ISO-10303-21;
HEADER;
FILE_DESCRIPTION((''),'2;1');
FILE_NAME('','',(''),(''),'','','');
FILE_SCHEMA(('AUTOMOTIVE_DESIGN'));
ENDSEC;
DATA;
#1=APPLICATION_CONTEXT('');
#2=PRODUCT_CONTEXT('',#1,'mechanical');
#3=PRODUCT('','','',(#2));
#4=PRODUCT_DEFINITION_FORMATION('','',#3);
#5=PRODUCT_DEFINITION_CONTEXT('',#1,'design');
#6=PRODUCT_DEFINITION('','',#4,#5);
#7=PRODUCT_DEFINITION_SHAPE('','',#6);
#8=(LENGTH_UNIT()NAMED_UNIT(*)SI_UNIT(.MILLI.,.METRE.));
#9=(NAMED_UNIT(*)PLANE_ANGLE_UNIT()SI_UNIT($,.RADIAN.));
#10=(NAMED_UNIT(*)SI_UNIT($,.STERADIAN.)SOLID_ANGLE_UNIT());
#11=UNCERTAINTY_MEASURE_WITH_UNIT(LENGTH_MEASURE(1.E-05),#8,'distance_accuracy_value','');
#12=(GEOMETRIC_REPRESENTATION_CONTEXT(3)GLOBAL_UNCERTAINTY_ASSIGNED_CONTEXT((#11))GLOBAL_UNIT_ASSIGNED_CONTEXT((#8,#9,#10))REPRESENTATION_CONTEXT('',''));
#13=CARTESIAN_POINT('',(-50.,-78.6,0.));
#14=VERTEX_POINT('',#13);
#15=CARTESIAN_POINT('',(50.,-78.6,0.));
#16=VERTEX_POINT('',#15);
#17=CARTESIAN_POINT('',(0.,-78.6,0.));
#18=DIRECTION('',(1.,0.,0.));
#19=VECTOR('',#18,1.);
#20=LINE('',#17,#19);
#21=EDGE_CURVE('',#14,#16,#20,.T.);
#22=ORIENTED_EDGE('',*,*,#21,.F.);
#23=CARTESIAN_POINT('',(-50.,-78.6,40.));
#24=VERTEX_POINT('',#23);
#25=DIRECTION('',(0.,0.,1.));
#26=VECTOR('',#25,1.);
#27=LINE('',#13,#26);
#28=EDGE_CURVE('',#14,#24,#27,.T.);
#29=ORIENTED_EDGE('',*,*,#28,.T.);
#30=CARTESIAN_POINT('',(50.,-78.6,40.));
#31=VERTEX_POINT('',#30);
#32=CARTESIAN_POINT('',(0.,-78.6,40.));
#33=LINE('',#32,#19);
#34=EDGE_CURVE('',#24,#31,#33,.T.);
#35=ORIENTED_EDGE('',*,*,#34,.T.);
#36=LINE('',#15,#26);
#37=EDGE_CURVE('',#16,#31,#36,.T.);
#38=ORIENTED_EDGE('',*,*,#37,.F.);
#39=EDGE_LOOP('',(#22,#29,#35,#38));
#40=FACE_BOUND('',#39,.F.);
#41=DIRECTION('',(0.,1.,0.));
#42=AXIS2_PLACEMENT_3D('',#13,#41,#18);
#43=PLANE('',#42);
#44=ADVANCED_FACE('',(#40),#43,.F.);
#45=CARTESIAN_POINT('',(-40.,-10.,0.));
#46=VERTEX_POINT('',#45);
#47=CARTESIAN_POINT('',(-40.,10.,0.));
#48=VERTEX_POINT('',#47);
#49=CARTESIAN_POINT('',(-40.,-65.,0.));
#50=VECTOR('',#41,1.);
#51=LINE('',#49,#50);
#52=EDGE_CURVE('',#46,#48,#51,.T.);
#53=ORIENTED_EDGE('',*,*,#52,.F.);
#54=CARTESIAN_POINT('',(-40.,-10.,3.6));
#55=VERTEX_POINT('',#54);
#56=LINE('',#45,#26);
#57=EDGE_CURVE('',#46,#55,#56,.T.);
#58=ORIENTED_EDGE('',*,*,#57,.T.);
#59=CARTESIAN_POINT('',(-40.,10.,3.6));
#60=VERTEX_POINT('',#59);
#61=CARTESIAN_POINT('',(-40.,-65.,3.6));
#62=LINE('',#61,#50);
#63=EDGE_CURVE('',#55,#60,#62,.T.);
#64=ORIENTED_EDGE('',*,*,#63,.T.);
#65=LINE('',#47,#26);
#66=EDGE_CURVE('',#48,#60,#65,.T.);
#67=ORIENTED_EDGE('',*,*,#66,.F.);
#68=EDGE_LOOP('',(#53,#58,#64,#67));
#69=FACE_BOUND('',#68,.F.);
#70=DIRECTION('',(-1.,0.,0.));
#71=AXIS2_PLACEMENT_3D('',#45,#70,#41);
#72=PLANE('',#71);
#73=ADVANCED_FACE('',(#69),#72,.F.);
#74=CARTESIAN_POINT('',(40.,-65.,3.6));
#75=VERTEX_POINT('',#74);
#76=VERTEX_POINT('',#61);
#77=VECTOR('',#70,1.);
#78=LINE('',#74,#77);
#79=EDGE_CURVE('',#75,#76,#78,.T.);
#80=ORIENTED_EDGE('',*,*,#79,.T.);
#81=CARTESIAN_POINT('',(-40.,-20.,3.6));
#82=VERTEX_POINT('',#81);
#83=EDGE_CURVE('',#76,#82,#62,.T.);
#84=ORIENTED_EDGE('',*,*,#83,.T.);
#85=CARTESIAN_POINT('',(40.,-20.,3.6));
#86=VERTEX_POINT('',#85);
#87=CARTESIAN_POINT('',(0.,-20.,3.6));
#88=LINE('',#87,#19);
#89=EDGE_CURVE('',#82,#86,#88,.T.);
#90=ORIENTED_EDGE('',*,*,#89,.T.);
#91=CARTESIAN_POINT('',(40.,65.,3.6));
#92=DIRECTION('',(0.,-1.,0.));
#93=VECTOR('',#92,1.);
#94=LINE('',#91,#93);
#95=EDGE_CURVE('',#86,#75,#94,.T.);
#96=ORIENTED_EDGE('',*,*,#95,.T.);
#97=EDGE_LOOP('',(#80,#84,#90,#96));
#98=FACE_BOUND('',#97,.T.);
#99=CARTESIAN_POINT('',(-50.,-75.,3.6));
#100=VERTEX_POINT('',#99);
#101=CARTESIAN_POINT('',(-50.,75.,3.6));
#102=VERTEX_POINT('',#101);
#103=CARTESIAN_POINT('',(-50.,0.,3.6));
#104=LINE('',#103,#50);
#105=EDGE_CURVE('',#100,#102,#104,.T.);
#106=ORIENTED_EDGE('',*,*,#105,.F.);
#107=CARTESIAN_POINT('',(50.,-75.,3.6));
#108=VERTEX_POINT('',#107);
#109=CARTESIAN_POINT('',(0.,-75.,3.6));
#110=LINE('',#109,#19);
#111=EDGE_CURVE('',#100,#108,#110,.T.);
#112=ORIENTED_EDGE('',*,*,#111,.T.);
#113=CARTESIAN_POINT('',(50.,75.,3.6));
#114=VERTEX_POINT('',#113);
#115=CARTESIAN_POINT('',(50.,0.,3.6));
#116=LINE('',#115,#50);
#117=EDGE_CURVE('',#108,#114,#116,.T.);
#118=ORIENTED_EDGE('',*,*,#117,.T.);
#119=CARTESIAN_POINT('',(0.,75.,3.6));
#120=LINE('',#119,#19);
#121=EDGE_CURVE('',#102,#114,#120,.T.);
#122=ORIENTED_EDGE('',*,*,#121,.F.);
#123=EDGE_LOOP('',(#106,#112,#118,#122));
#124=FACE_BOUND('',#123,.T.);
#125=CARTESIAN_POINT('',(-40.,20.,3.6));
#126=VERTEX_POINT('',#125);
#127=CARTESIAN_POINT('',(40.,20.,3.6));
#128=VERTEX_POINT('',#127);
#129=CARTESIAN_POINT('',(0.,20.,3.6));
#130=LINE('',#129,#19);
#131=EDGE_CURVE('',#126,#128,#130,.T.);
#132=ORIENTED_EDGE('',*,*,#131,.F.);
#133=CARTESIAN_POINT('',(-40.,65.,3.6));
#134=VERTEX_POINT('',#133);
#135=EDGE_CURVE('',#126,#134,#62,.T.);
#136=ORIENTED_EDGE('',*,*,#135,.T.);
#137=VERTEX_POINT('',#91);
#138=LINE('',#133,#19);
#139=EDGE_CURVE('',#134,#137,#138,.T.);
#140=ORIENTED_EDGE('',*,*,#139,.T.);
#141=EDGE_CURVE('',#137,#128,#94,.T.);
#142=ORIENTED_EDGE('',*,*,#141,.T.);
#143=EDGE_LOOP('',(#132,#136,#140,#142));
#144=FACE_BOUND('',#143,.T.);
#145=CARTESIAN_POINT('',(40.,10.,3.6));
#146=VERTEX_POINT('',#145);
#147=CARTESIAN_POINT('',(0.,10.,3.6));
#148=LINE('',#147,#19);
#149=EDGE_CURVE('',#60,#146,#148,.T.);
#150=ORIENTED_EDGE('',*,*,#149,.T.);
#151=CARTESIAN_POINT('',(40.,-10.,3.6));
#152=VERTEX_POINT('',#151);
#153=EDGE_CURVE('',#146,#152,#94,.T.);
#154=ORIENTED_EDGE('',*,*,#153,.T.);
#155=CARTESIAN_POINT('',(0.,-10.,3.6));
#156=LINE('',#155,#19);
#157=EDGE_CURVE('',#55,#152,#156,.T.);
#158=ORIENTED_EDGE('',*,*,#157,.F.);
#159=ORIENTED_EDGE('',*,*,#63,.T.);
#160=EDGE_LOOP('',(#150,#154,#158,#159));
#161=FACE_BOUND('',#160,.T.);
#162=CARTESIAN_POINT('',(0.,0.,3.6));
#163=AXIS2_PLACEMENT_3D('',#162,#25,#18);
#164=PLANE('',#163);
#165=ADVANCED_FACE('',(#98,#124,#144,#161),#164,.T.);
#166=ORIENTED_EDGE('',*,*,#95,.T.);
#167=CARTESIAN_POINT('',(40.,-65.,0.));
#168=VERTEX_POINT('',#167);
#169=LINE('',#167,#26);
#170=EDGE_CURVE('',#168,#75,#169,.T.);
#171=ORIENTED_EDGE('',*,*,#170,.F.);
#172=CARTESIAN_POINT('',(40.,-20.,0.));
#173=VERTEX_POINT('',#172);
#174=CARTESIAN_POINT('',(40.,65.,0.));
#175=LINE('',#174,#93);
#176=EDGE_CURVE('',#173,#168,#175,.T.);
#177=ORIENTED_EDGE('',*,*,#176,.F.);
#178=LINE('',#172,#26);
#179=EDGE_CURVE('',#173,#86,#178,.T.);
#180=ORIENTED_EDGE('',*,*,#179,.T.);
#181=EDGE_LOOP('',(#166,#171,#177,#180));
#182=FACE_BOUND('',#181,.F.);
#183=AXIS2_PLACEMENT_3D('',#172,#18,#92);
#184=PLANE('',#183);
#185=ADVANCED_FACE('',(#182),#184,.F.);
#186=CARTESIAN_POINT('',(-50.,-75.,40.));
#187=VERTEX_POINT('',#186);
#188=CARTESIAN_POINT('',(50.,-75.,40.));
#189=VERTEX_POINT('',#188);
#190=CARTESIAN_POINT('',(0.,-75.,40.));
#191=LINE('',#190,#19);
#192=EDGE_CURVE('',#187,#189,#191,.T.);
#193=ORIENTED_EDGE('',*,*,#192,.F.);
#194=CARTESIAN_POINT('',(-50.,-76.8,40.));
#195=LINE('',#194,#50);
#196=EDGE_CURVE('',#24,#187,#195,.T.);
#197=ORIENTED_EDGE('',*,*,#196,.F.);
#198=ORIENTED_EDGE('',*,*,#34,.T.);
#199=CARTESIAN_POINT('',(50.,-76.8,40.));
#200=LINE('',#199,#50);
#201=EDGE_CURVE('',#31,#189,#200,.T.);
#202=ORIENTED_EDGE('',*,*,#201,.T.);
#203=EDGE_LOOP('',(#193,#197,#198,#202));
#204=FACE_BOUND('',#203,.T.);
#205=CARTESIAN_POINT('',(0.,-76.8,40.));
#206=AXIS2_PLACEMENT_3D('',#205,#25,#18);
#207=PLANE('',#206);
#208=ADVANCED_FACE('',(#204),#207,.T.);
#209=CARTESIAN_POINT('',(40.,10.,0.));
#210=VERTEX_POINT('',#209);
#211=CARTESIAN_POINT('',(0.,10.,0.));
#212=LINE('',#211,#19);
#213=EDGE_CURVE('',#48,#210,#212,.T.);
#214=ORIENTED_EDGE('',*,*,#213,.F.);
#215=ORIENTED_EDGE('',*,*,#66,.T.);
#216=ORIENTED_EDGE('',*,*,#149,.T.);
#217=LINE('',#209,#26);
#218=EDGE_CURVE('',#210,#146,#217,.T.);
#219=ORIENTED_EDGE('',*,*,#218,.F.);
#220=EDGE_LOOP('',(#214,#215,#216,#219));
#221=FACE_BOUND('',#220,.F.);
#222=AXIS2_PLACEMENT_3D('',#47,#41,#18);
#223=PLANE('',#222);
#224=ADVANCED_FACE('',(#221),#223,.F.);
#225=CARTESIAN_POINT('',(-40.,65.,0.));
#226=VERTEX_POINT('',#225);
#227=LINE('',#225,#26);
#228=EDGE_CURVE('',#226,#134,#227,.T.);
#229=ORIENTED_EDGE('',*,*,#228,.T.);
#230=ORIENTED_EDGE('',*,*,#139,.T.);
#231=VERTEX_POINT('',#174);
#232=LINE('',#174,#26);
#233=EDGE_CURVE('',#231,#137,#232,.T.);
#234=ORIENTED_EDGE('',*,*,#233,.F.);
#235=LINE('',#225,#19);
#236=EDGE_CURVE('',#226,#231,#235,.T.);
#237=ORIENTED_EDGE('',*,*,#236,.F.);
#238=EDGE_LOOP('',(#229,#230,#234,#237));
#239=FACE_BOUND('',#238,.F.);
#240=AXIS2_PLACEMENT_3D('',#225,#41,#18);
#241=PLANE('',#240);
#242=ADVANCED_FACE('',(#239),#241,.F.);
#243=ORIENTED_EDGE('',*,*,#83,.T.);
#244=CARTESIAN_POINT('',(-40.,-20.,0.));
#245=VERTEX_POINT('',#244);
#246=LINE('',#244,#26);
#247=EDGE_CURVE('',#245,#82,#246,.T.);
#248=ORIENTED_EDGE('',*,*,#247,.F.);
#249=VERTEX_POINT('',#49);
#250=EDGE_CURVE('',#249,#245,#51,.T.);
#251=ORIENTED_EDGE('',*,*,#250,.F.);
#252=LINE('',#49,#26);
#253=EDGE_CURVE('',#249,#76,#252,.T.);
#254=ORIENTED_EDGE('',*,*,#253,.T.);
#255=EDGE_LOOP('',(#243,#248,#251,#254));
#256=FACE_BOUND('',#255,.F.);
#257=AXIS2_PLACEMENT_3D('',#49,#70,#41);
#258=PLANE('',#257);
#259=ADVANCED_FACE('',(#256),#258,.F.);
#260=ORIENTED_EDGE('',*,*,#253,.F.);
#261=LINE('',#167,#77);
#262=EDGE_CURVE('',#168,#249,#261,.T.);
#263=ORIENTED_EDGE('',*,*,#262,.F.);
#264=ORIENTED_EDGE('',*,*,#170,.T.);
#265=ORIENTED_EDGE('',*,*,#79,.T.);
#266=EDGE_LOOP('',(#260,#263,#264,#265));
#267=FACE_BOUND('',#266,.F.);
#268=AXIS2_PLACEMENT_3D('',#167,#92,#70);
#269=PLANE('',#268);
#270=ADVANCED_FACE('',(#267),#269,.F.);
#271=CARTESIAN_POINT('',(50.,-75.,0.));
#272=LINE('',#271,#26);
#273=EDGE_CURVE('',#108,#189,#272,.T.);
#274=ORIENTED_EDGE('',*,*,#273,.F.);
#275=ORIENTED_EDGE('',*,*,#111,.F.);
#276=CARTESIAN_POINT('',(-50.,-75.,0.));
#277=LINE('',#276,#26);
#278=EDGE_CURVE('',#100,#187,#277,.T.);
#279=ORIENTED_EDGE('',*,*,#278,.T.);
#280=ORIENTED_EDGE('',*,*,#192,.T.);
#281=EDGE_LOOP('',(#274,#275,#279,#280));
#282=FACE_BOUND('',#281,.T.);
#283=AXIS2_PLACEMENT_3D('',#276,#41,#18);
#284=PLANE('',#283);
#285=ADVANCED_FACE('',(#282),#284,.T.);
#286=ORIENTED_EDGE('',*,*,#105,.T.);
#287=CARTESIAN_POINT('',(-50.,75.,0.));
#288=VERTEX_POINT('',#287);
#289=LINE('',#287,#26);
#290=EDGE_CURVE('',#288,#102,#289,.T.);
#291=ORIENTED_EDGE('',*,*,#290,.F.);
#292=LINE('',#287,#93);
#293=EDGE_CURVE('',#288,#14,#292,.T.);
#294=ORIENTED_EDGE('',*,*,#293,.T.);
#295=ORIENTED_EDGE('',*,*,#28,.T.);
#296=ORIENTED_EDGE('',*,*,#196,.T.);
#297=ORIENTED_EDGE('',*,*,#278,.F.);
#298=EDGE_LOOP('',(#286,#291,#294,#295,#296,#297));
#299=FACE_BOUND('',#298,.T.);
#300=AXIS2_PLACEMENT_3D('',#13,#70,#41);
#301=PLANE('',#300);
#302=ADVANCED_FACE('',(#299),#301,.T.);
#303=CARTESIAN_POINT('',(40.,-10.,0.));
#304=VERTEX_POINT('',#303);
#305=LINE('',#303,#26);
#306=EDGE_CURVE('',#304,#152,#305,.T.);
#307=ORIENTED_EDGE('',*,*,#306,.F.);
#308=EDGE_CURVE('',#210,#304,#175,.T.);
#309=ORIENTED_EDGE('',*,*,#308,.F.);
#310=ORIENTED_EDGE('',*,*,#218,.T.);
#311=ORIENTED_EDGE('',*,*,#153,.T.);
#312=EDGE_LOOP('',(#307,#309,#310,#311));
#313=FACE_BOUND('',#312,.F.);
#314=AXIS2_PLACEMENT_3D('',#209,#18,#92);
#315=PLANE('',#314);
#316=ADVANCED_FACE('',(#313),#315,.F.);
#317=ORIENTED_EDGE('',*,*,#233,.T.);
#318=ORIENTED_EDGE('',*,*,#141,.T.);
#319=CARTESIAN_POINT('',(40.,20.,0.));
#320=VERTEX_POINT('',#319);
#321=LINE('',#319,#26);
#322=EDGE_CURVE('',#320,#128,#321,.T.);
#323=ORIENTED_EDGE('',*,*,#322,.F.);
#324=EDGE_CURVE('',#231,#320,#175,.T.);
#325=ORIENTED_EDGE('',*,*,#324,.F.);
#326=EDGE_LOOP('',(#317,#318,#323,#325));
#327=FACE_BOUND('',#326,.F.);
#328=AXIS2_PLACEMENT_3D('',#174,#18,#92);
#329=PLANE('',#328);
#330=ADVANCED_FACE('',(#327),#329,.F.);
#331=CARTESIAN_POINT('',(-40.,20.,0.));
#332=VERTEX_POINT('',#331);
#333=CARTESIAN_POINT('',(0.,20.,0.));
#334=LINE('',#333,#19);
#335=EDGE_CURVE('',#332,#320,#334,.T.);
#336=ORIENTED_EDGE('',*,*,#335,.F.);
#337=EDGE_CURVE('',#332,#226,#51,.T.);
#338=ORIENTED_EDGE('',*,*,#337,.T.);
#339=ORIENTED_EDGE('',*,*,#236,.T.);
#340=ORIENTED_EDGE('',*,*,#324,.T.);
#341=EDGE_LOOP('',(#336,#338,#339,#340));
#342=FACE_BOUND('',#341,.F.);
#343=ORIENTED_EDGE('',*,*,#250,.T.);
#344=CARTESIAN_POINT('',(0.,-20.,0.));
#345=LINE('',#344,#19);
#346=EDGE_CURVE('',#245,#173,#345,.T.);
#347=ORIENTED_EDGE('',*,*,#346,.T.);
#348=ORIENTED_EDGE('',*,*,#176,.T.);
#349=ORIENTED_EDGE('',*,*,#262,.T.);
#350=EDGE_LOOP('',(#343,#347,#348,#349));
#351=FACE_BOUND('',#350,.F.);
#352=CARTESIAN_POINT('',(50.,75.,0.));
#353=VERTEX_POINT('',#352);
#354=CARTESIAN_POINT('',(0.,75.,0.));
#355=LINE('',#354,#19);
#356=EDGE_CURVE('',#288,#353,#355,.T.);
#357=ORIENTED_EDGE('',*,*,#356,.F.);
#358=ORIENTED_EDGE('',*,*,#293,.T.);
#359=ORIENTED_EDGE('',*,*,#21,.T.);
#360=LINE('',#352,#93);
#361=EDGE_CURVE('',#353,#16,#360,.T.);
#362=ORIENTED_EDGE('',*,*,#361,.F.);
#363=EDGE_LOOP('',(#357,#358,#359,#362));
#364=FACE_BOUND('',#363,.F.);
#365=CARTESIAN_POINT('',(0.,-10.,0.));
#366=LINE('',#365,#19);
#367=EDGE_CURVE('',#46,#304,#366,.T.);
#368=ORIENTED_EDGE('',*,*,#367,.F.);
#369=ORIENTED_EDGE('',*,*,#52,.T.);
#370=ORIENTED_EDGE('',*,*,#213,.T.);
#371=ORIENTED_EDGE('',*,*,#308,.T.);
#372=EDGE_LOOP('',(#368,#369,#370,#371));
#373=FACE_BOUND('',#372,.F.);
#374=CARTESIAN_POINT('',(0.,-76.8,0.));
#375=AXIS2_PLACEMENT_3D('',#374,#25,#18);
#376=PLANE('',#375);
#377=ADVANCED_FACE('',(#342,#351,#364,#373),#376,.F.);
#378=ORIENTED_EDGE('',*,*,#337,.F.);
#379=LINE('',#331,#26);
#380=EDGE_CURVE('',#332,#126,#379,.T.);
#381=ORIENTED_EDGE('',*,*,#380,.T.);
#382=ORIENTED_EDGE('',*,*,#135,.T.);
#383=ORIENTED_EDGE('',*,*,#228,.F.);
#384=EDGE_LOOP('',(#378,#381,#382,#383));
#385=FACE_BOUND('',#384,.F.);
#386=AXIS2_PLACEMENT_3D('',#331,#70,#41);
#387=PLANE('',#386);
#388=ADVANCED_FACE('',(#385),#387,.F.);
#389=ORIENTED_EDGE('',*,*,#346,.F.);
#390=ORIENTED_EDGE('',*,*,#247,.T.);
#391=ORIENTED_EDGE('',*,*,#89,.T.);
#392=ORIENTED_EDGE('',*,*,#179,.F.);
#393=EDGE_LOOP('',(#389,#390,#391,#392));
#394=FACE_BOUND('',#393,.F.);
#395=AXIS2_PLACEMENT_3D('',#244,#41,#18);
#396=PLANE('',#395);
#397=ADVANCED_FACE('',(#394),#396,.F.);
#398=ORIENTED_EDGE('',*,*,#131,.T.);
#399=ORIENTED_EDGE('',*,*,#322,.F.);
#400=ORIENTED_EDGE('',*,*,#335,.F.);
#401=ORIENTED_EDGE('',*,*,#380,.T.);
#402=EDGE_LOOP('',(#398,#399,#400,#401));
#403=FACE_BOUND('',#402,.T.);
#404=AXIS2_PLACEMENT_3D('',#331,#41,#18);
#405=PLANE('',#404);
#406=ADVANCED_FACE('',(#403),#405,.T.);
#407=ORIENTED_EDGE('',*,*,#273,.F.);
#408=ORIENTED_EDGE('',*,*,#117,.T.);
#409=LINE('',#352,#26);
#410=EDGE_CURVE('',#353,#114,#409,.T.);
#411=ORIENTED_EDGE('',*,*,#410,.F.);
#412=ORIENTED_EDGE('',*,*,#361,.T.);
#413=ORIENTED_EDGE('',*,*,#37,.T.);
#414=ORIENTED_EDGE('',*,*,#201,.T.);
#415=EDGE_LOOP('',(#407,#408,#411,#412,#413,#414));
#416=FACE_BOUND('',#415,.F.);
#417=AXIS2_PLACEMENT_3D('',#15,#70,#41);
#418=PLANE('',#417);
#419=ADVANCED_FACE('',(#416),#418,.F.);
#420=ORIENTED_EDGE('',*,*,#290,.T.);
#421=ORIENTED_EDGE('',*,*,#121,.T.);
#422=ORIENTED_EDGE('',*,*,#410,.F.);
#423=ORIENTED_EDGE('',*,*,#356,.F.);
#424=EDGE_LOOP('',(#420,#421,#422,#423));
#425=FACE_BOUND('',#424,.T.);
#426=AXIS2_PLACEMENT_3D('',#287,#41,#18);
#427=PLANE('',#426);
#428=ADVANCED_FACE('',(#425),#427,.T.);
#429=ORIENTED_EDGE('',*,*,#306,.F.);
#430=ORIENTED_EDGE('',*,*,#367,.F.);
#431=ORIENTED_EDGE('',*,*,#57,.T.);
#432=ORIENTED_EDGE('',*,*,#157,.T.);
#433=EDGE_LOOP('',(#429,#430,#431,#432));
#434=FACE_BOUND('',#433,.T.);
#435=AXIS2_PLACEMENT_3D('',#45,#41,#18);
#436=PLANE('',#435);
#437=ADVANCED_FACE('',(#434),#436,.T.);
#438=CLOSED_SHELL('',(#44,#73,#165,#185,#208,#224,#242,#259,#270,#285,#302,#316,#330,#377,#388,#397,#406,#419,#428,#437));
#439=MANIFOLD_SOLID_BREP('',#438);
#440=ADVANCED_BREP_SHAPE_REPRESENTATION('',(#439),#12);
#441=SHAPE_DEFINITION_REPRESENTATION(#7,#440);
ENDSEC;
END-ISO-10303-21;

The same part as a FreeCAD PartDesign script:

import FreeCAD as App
import Part
import Sketcher

V = App.Vector
Q = App.Units.Quantity

doc = App.newDocument("Part")
body = doc.addObject("PartDesign::Body", "Body")

# Sketch on XY plane
sketch1 = doc.addObject("Sketcher::SketchObject", "Sketch")
body.addObject(sketch1)
sketch1.AttachmentSupport = (doc.XY_Plane, [""])
sketch1.MapMode = "FlatFace"
sketch1.addGeometry([
    Part.LineSegment(V(-50, 75, 0), V(-50, -75, 0)),  # 0
    Part.LineSegment(V(-50, -75, 0), V(50, -75, 0)),  # 1
    Part.LineSegment(V(50, -75, 0), V(50, 75, 0)),  # 2
    Part.LineSegment(V(50, 75, 0), V(-50, 75, 0)),  # 3
    Part.LineSegment(V(-40, -65, 0), V(-40, -20, 0)),  # 4
    Part.LineSegment(V(-40, -20, 0), V(40, -20, 0)),  # 5
    Part.LineSegment(V(40, -20, 0), V(40, -65, 0)),  # 6
    Part.LineSegment(V(40, -65, 0), V(-40, -65, 0)),  # 7
    Part.LineSegment(V(-40, -10, 0), V(-40, 10, 0)),  # 8
    Part.LineSegment(V(-40, 10, 0), V(40, 10, 0)),  # 9
    Part.LineSegment(V(40, 10, 0), V(40, -10, 0)),  # 10
    Part.LineSegment(V(40, -10, 0), V(-40, -10, 0)),  # 11
    Part.LineSegment(V(-40, 20, 0), V(-40, 65, 0)),  # 12
    Part.LineSegment(V(-40, 65, 0), V(40, 65, 0)),  # 13
    Part.LineSegment(V(40, 65, 0), V(40, 20, 0)),  # 14
    Part.LineSegment(V(40, 20, 0), V(-40, 20, 0)),  # 15
], False)
sketch1.addConstraint([
    Sketcher.Constraint("Coincident", 0, 2, 1, 1),
    Sketcher.Constraint("Coincident", 1, 2, 2, 1),
    Sketcher.Constraint("Coincident", 2, 2, 3, 1),
    Sketcher.Constraint("Coincident", 3, 2, 0, 1),
    Sketcher.Constraint("Coincident", 4, 2, 5, 1),
    Sketcher.Constraint("Coincident", 5, 2, 6, 1),
    Sketcher.Constraint("Coincident", 6, 2, 7, 1),
    Sketcher.Constraint("Coincident", 7, 2, 4, 1),
    Sketcher.Constraint("Coincident", 8, 2, 9, 1),
    Sketcher.Constraint("Coincident", 9, 2, 10, 1),
    Sketcher.Constraint("Coincident", 10, 2, 11, 1),
    Sketcher.Constraint("Coincident", 11, 2, 8, 1),
    Sketcher.Constraint("Coincident", 12, 2, 13, 1),
    Sketcher.Constraint("Coincident", 13, 2, 14, 1),
    Sketcher.Constraint("Coincident", 14, 2, 15, 1),
    Sketcher.Constraint("Coincident", 15, 2, 12, 1),
    Sketcher.Constraint("Vertical", 0),
    Sketcher.Constraint("Horizontal", 1),
    Sketcher.Constraint("Vertical", 2),
    Sketcher.Constraint("Horizontal", 3),
    Sketcher.Constraint("Vertical", 4),
    Sketcher.Constraint("Horizontal", 5),
    Sketcher.Constraint("Vertical", 6),
    Sketcher.Constraint("Horizontal", 7),
    Sketcher.Constraint("Vertical", 8),
    Sketcher.Constraint("Horizontal", 9),
    Sketcher.Constraint("Vertical", 10),
    Sketcher.Constraint("Horizontal", 11),
    Sketcher.Constraint("Vertical", 12),
    Sketcher.Constraint("Horizontal", 13),
    Sketcher.Constraint("Vertical", 14),
    Sketcher.Constraint("Horizontal", 15),
    Sketcher.Constraint("Symmetric", 0, 2, 2, 2, -1, 1),
    Sketcher.Constraint("Symmetric", 8, 2, 10, 2, -1, 1),
    Sketcher.Constraint("Symmetric", 6, 2, 12, 2, -1, 1),
    Sketcher.Constraint("Symmetric", 4, 2, 14, 2, -1, 1),
    Sketcher.Constraint("Vertical", 7, 2, 8, 2),
    Sketcher.Constraint("Vertical", 6, 2, 9, 2),
    Sketcher.Constraint("DistanceX", 1, 1, 1, 2, Q("100 mm")),
    Sketcher.Constraint("DistanceX", 5, 1, 5, 2, Q("80 mm")),
    Sketcher.Constraint("DistanceY", 0, 2, 0, 1, Q("150 mm")),
    Sketcher.Constraint("DistanceY", 4, 1, 4, 2, Q("45 mm")),
    Sketcher.Constraint("DistanceY", 8, 1, 8, 2, Q("20 mm")),
    Sketcher.Constraint("DistanceY", 4, 2, -1, 1, Q("20 mm")),
])
pad1 = doc.addObject("PartDesign::Pad", "Pad")
body.addObject(pad1)
pad1.Profile = sketch1
pad1.Length = 3.6

# Sketch on XY plane
sketch2 = doc.addObject("Sketcher::SketchObject", "Sketch001")
body.addObject(sketch2)
sketch2.AttachmentSupport = (doc.XY_Plane, [""])
sketch2.MapMode = "FlatFace"
sketch2.addGeometry([
    Part.LineSegment(V(-50, -75, 0), V(-50, -78.6, 0)),
    Part.LineSegment(V(-50, -78.6, 0), V(50, -78.6, 0)),
    Part.LineSegment(V(50, -78.6, 0), V(50, -75, 0)),
    Part.LineSegment(V(50, -75, 0), V(-50, -75, 0)),
], False)
sketch2.addConstraint([
    Sketcher.Constraint("Coincident", 0, 2, 1, 1),
    Sketcher.Constraint("Coincident", 1, 2, 2, 1),
    Sketcher.Constraint("Coincident", 2, 2, 3, 1),
    Sketcher.Constraint("Coincident", 3, 2, 0, 1),
    Sketcher.Constraint("Vertical", 0),
    Sketcher.Constraint("Horizontal", 1),
    Sketcher.Constraint("Vertical", 2),
    Sketcher.Constraint("Horizontal", 3),
    Sketcher.Constraint("DistanceX", 1, 1, 1, 2, Q("100 mm")),
    Sketcher.Constraint("DistanceY", 0, 2, 0, 1, Q("3.6 mm")),
    Sketcher.Constraint("DistanceX", 0, 2, -1, 1, Q("50 mm")),
    Sketcher.Constraint("DistanceY", 2, 2, -1, 1, Q("75 mm")),
])
pad2 = doc.addObject("PartDesign::Pad", "Pad001")
body.addObject(pad2)
pad2.Profile = sketch2
pad2.Length = 40

doc.recompute()
